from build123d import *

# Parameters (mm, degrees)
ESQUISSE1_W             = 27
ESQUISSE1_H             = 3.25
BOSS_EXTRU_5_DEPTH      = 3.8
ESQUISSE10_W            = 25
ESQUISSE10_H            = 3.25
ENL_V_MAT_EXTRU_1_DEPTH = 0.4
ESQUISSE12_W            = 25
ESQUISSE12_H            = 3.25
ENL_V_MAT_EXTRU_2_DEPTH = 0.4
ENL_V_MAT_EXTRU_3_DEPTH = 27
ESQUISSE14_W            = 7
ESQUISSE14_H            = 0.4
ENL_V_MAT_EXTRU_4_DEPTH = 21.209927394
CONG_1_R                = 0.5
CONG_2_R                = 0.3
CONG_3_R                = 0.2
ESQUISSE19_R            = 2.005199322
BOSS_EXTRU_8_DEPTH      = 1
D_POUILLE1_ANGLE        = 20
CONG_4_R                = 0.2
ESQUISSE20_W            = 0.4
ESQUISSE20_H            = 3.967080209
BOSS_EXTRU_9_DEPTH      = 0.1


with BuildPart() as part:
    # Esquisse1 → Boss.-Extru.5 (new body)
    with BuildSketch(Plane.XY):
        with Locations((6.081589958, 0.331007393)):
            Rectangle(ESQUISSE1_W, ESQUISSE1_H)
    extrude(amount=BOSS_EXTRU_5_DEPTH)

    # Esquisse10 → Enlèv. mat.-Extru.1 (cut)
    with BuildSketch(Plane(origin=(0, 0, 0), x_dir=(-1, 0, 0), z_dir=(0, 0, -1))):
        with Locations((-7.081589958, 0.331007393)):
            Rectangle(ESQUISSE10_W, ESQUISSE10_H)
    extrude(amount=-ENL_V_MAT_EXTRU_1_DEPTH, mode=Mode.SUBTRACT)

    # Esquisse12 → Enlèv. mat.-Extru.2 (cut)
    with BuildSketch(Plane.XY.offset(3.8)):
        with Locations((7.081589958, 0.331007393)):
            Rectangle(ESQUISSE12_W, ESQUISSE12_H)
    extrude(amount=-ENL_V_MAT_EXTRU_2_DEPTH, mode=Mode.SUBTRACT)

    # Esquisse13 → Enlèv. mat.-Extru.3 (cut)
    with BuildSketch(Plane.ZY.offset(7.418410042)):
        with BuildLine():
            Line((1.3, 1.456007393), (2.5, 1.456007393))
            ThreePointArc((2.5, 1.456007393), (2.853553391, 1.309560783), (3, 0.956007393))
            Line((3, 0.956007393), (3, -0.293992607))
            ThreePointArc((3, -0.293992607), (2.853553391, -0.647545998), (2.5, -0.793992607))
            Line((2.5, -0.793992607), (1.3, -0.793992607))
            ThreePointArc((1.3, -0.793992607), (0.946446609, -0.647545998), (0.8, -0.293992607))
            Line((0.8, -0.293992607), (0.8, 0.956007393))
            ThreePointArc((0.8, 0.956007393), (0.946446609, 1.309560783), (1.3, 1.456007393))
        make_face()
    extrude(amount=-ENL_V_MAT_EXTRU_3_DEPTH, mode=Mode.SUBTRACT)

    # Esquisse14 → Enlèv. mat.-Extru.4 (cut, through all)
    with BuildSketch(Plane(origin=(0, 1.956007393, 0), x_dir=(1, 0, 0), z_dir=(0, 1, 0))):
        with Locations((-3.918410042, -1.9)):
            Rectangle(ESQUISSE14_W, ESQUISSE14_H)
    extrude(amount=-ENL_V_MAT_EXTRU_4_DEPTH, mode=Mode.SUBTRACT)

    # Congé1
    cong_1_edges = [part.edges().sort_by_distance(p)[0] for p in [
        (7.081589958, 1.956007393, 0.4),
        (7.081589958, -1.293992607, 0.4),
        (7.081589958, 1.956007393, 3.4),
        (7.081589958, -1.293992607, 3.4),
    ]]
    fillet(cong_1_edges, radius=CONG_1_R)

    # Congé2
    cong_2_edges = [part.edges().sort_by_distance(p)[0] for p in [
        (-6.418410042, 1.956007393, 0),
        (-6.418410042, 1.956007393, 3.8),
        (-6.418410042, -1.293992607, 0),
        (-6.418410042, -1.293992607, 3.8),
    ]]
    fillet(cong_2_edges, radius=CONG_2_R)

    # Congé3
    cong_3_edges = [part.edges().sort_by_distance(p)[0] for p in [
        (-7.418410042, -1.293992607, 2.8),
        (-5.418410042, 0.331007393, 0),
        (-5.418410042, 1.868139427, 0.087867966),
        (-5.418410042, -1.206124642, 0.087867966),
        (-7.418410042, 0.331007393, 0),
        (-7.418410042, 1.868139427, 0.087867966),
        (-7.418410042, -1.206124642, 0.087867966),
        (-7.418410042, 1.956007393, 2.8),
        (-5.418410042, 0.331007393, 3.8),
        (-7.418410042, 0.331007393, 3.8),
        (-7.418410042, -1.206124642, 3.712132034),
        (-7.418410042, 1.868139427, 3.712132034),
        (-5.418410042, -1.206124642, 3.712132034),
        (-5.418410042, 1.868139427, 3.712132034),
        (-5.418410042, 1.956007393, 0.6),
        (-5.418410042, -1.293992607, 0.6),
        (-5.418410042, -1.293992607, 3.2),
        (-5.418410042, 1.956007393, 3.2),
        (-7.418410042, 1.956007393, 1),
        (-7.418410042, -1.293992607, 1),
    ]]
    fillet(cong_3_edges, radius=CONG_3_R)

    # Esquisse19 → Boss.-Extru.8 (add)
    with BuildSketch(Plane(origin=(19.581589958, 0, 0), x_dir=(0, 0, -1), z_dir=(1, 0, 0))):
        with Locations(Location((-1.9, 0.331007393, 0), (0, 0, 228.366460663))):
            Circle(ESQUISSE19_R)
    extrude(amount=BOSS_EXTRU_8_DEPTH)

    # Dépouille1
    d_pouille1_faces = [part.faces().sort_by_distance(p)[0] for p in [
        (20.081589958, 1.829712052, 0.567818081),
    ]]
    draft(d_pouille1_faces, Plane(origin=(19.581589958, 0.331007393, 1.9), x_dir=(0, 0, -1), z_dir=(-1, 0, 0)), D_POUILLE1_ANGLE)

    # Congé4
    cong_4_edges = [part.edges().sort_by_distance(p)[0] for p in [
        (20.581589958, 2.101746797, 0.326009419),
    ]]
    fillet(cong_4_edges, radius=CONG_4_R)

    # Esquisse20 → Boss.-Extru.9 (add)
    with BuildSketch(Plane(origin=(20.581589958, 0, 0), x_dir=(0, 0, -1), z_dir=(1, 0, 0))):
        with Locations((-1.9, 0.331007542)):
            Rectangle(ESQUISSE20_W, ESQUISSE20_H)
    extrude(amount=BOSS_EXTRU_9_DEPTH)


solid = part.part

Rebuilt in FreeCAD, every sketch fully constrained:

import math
import FreeCAD as App
import Part
import Sketcher


def edges_at(feature, points):
    """Names of the edges that pass closest to the given points."""
    edges = feature.Shape.Edges
    near = lambda p: min(range(len(edges)), key=lambda i: edges[i].distToShape(Part.Vertex(*p))[0])
    return sorted({f"Edge{near(p) + 1}" for p in points})


def faces_at(feature, points):
    """Names of the faces that lie closest to the given points."""
    faces = feature.Shape.Faces
    near = lambda p: min(range(len(faces)), key=lambda i: faces[i].distToShape(Part.Vertex(*p))[0])
    return sorted({f"Face{near(p) + 1}" for p in points})

doc = App.newDocument("Part")
body = doc.addObject("PartDesign::Body", "Body")

sketch1 = body.newObject("Sketcher::SketchObject", "Sketch")
sketch1.AttachmentSupport = (doc.getObject("XY_Plane"), [""])
sketch1.MapMode = "FlatFace"
sketch1.addGeometry(Part.LineSegment(App.Vector(-7.4, 2, 0), App.Vector(-7.4, -1.3, 0)), False)
sketch1.addGeometry(Part.LineSegment(App.Vector(-7.4, -1.3, 0), App.Vector(19.6, -1.3, 0)), False)
sketch1.addGeometry(Part.LineSegment(App.Vector(19.6, -1.3, 0), App.Vector(19.6, 2, 0)), False)
sketch1.addGeometry(Part.LineSegment(App.Vector(19.6, 2, 0), App.Vector(-7.4, 2, 0)), False)
sketch1.addConstraint(Sketcher.Constraint("Coincident", 0, 2, 1, 1))
sketch1.addConstraint(Sketcher.Constraint("Coincident", 1, 2, 2, 1))
sketch1.addConstraint(Sketcher.Constraint("Coincident", 2, 2, 3, 1))
sketch1.addConstraint(Sketcher.Constraint("Coincident", 3, 2, 0, 1))
sketch1.addConstraint(Sketcher.Constraint("Vertical", 0))
sketch1.addConstraint(Sketcher.Constraint("Horizontal", 1))
sketch1.addConstraint(Sketcher.Constraint("Vertical", 2))
sketch1.addConstraint(Sketcher.Constraint("Horizontal", 3))
sketch1.addConstraint(Sketcher.Constraint("DistanceX", 1, 1, 1, 2, 27.0))
sketch1.addConstraint(Sketcher.Constraint("DistanceY", 0, 2, 0, 1, 3.25))
sketch1.addConstraint(Sketcher.Constraint("DistanceX", 0, 2, -1, 1, 7.41841))
sketch1.addConstraint(Sketcher.Constraint("DistanceY", 0, 2, -1, 1, 1.293993))
pad1 = body.newObject("PartDesign::Pad", "Pad")
pad1.Profile = sketch1
pad1.Length = 3.8

sketch2 = body.newObject("Sketcher::SketchObject", "Sketch001")
sketch2.AttachmentSupport = (doc.getObject("XY_Plane"), [""])
sketch2.MapMode = "FlatFace"
sketch2.addGeometry(Part.LineSegment(App.Vector(19.6, 2, 0), App.Vector(19.6, -1.3, 0)), False)
sketch2.addGeometry(Part.LineSegment(App.Vector(19.6, -1.3, 0), App.Vector(-5.4, -1.3, 0)), False)
sketch2.addGeometry(Part.LineSegment(App.Vector(-5.4, -1.3, 0), App.Vector(-5.4, 2, 0)), False)
sketch2.addGeometry(Part.LineSegment(App.Vector(-5.4, 2, 0), App.Vector(19.6, 2, 0)), False)
sketch2.addConstraint(Sketcher.Constraint("Coincident", 0, 2, 1, 1))
sketch2.addConstraint(Sketcher.Constraint("Coincident", 1, 2, 2, 1))
sketch2.addConstraint(Sketcher.Constraint("Coincident", 2, 2, 3, 1))
sketch2.addConstraint(Sketcher.Constraint("Coincident", 3, 2, 0, 1))
sketch2.addConstraint(Sketcher.Constraint("Vertical", 0))
sketch2.addConstraint(Sketcher.Constraint("Horizontal", 1))
sketch2.addConstraint(Sketcher.Constraint("Vertical", 2))
sketch2.addConstraint(Sketcher.Constraint("Horizontal", 3))
sketch2.addConstraint(Sketcher.Constraint("DistanceX", 1, 2, 1, 1, 25.0))
sketch2.addConstraint(Sketcher.Constraint("DistanceY", 0, 2, 0, 1, 3.25))
sketch2.addConstraint(Sketcher.Constraint("DistanceX", -1, 1, 0, 2, 19.58159))
sketch2.addConstraint(Sketcher.Constraint("DistanceY", 0, 2, -1, 1, 1.293993))
pocket1 = body.newObject("PartDesign::Pocket", "Pocket")
pocket1.Profile = sketch2
pocket1.Length = 0.4
pocket1.Reversed = True

sketch3 = body.newObject("Sketcher::SketchObject", "Sketch002")
sketch3.AttachmentSupport = (doc.getObject("XY_Plane"), [""])
sketch3.MapMode = "FlatFace"
sketch3.AttachmentOffset = App.Placement(App.Vector(0, 0, 3.8), App.Rotation())
sketch3.addGeometry(Part.LineSegment(App.Vector(-5.4, 2, 0), App.Vector(-5.4, -1.3, 0)), False)
sketch3.addGeometry(Part.LineSegment(App.Vector(-5.4, -1.3, 0), App.Vector(19.6, -1.3, 0)), False)
sketch3.addGeometry(Part.LineSegment(App.Vector(19.6, -1.3, 0), App.Vector(19.6, 2, 0)), False)
sketch3.addGeometry(Part.LineSegment(App.Vector(19.6, 2, 0), App.Vector(-5.4, 2, 0)), False)
sketch3.addConstraint(Sketcher.Constraint("Coincident", 0, 2, 1, 1))
sketch3.addConstraint(Sketcher.Constraint("Coincident", 1, 2, 2, 1))
sketch3.addConstraint(Sketcher.Constraint("Coincident", 2, 2, 3, 1))
sketch3.addConstraint(Sketcher.Constraint("Coincident", 3, 2, 0, 1))
sketch3.addConstraint(Sketcher.Constraint("Vertical", 0))
sketch3.addConstraint(Sketcher.Constraint("Horizontal", 1))
sketch3.addConstraint(Sketcher.Constraint("Vertical", 2))
sketch3.addConstraint(Sketcher.Constraint("Horizontal", 3))
sketch3.addConstraint(Sketcher.Constraint("DistanceX", 1, 1, 1, 2, 25.0))
sketch3.addConstraint(Sketcher.Constraint("DistanceY", 0, 2, 0, 1, 3.25))
sketch3.addConstraint(Sketcher.Constraint("DistanceX", 0, 2, -1, 1, 5.41841))
sketch3.addConstraint(Sketcher.Constraint("DistanceY", 0, 2, -1, 1, 1.293993))
pocket2 = body.newObject("PartDesign::Pocket", "Pocket001")
pocket2.Profile = sketch3
pocket2.Length = 0.4

sketch4 = body.newObject("Sketcher::SketchObject", "Sketch003")
sketch4.AttachmentSupport = (doc.getObject("YZ_Plane"), [""])
sketch4.MapMode = "FlatFace"
sketch4.AttachmentOffset = App.Placement(App.Vector(0, 0, -7.41841), App.Rotation())
sketch4.addGeometry(Part.LineSegment(App.Vector(1.46, 2.5, 0), App.Vector(1.46, 1.3, 0)), False)
sketch4.addGeometry(Part.ArcOfCircle(Part.Circle(App.Vector(0.96, 1.3, 0), App.Vector(0, 0, 1), 0.5), math.radians(-90), math.radians(0)), False)
sketch4.addGeometry(Part.LineSegment(App.Vector(0.96, 0.8, 0), App.Vector(-0.29, 0.8, 0)), False)
sketch4.addGeometry(Part.ArcOfCircle(Part.Circle(App.Vector(-0.29, 1.3, 0), App.Vector(0, 0, 1), 0.5), math.radians(180), math.radians(270)), False)
sketch4.addGeometry(Part.LineSegment(App.Vector(-0.79, 1.3, 0), App.Vector(-0.79, 2.5, 0)), False)
sketch4.addGeometry(Part.ArcOfCircle(Part.Circle(App.Vector(-0.29, 2.5, 0), App.Vector(0, 0, 1), 0.5), math.radians(90), math.radians(180)), False)
sketch4.addGeometry(Part.LineSegment(App.Vector(-0.29, 3, 0), App.Vector(0.96, 3, 0)), False)
sketch4.addGeometry(Part.ArcOfCircle(Part.Circle(App.Vector(0.96, 2.5, 0), App.Vector(0, 0, 1), 0.5), math.radians(0), math.radians(90)), False)
sketch4.addConstraint(Sketcher.Constraint("Tangent", 0, 2, 1, 2))
sketch4.addConstraint(Sketcher.Constraint("Tangent", 1, 1, 2, 1))
sketch4.addConstraint(Sketcher.Constraint("Tangent", 2, 2, 3, 2))
sketch4.addConstraint(Sketcher.Constraint("Tangent", 3, 1, 4, 1))
sketch4.addConstraint(Sketcher.Constraint("Tangent", 4, 2, 5, 2))
sketch4.addConstraint(Sketcher.Constraint("Tangent", 5, 1, 6, 1))
sketch4.addConstraint(Sketcher.Constraint("Tangent", 6, 2, 7, 2))
sketch4.addConstraint(Sketcher.Constraint("Tangent", 7, 1, 0, 1))
sketch4.addConstraint(Sketcher.Constraint("Vertical", 0))
sketch4.addConstraint(Sketcher.Constraint("Horizontal", 2))
sketch4.addConstraint(Sketcher.Constraint("Vertical", 4))
sketch4.addConstraint(Sketcher.Constraint("Horizontal", 6))
sketch4.addConstraint(Sketcher.Constraint("Equal", 1, 3))
sketch4.addConstraint(Sketcher.Constraint("Equal", 3, 5))
sketch4.addConstraint(Sketcher.Constraint("Equal", 5, 7))
sketch4.addConstraint(Sketcher.Constraint("Radius", 1, 0.5))
sketch4.addConstraint(Sketcher.Constraint("DistanceY", 0, 2, 0, 1, 1.2))
sketch4.addConstraint(Sketcher.Constraint("DistanceY", -1, 1, 5, 1, 3.0))
sketch4.addConstraint(Sketcher.Constraint("DistanceX", 2, 2, 2, 1, 1.25))
sketch4.addConstraint(Sketcher.Constraint("DistanceX", -1, 1, 1, 3, 0.956007))
pocket3 = body.newObject("PartDesign::Pocket", "Pocket002")
pocket3.Profile = sketch4
pocket3.Length = 27
pocket3.Reversed = True

sketch5 = body.newObject("Sketcher::SketchObject", "Sketch004")
sketch5.AttachmentSupport = (doc.getObject("XZ_Plane"), [""])
sketch5.MapMode = "FlatFace"
sketch5.AttachmentOffset = App.Placement(App.Vector(0, 0, -1.956007), App.Rotation())
sketch5.addGeometry(Part.LineSegment(App.Vector(-7.42, 1.7, 0), App.Vector(-7.42, 2.1, 0)), False)
sketch5.addGeometry(Part.LineSegment(App.Vector(-7.42, 2.1, 0), App.Vector(-0.42, 2.1, 0)), False)
sketch5.addGeometry(Part.LineSegment(App.Vector(-0.42, 2.1, 0), App.Vector(-0.42, 1.7, 0)), False)
sketch5.addGeometry(Part.LineSegment(App.Vector(-0.42, 1.7, 0), App.Vector(-7.42, 1.7, 0)), False)
sketch5.addConstraint(Sketcher.Constraint("Coincident", 0, 2, 1, 1))
sketch5.addConstraint(Sketcher.Constraint("Coincident", 1, 2, 2, 1))
sketch5.addConstraint(Sketcher.Constraint("Coincident", 2, 2, 3, 1))
sketch5.addConstraint(Sketcher.Constraint("Coincident", 3, 2, 0, 1))
sketch5.addConstraint(Sketcher.Constraint("Vertical", 0))
sketch5.addConstraint(Sketcher.Constraint("Horizontal", 1))
sketch5.addConstraint(Sketcher.Constraint("Vertical", 2))
sketch5.addConstraint(Sketcher.Constraint("Horizontal", 3))
sketch5.addConstraint(Sketcher.Constraint("DistanceX", 1, 1, 1, 2, 7.0))
sketch5.addConstraint(Sketcher.Constraint("DistanceY", 0, 1, 0, 2, 0.4))
sketch5.addConstraint(Sketcher.Constraint("DistanceY", -1, 1, 0, 2, 2.1))
sketch5.addConstraint(Sketcher.Constraint("DistanceX", 0, 2, -1, 1, 7.41841))
pocket4 = body.newObject("PartDesign::Pocket", "Pocket003")
pocket4.Profile = sketch5
pocket4.Type = "ThroughAll"
pocket4.Reversed = True
doc.recompute()

fillet = body.newObject("PartDesign::Fillet", "Fillet")
fillet.Base = (pocket4, edges_at(pocket4, [
    (7.082, 1.956, 0.4),
    (7.082, -1.294, 0.4),
    (7.082, 1.956, 3.4),
    (7.082, -1.294, 3.4),
]))
fillet.Radius = 0.5
doc.recompute()

fillet2 = body.newObject("PartDesign::Fillet", "Fillet001")
fillet2.Base = (fillet, edges_at(fillet, [
    (-6.418, 1.956, 0),
    (-6.418, 1.956, 3.8),
    (-6.418, -1.294, 0),
    (-6.418, -1.294, 3.8),
]))
fillet2.Radius = 0.3
doc.recompute()

fillet3 = body.newObject("PartDesign::Fillet", "Fillet002")
fillet3.Base = (fillet2, edges_at(fillet2, [
    (-7.418, -1.294, 2.8),
    (-5.418, 0.331, 0),
    (-5.418, 1.868, 0.088),
    (-5.418, -1.206, 0.088),
    (-7.418, 0.331, 0),
    (-7.418, 1.868, 0.088),
    (-7.418, -1.206, 0.088),
    (-7.418, 1.956, 2.8),
    (-5.418, 0.331, 3.8),
    (-7.418, 0.331, 3.8),
    (-7.418, -1.206, 3.712),
    (-7.418, 1.868, 3.712),
    (-5.418, -1.206, 3.712),
    (-5.418, 1.868, 3.712),
    (-5.418, 1.956, 0.6),
    (-5.418, -1.294, 0.6),
    (-5.418, -1.294, 3.2),
    (-5.418, 1.956, 3.2),
    (-7.418, 1.956, 1),
    (-7.418, -1.294, 1),
]))
fillet3.Radius = 0.2

sketch6 = body.newObject("Sketcher::SketchObject", "Sketch005")
sketch6.AttachmentSupport = (doc.getObject("YZ_Plane"), [""])
sketch6.MapMode = "FlatFace"
sketch6.AttachmentOffset = App.Placement(App.Vector(0, 0, 19.58159), App.Rotation())
sketch6.addGeometry(Part.Circle(App.Vector(0.3, 1.9, 0), App.Vector(0, 0, 1), 2), False)
sketch6.addConstraint(Sketcher.Constraint("Diameter", 0, 4.010399))
sketch6.addConstraint(Sketcher.Constraint("DistanceY", -1, 1, 0, 3, 1.9))
sketch6.addConstraint(Sketcher.Constraint("DistanceX", -1, 1, 0, 3, 0.331007))
pad2 = body.newObject("PartDesign::Pad", "Pad001")
pad2.Profile = sketch6
pad2.Length = 1
doc.recompute()

datumplane = body.newObject("PartDesign::Plane", "DatumPlane")
datumplane.AttachmentSupport = (doc.getObject("YZ_Plane"), [""])
datumplane.MapMode = "FlatFace"
datumplane.AttachmentOffset = App.Placement(App.Vector(0, 0, 19.58159), App.Rotation())
draft = body.newObject("PartDesign::Draft", "Draft")
draft.Base = (pad2, faces_at(pad2, [(20.082, 1.83, 0.568)]))
draft.NeutralPlane = (datumplane, [""])
draft.Angle = 20
draft.Reversed = True
doc.recompute()

fillet4 = body.newObject("PartDesign::Fillet", "Fillet003")
fillet4.Base = (draft, edges_at(draft, [(20.582, 2.102, 0.326)]))
fillet4.Radius = 0.2

sketch7 = body.newObject("Sketcher::SketchObject", "Sketch006")
sketch7.AttachmentSupport = (doc.getObject("YZ_Plane"), [""])
sketch7.MapMode = "FlatFace"
sketch7.AttachmentOffset = App.Placement(App.Vector(0, 0, 20.58159), App.Rotation())
sketch7.addGeometry(Part.LineSegment(App.Vector(2.31, 2.1, 0), App.Vector(-1.65, 2.1, 0)), False)
sketch7.addGeometry(Part.LineSegment(App.Vector(-1.65, 2.1, 0), App.Vector(-1.65, 1.7, 0)), False)
sketch7.addGeometry(Part.LineSegment(App.Vector(-1.65, 1.7, 0), App.Vector(2.31, 1.7, 0)), False)
sketch7.addGeometry(Part.LineSegment(App.Vector(2.31, 1.7, 0), App.Vector(2.31, 2.1, 0)), False)
sketch7.addConstraint(Sketcher.Constraint("Coincident", 0, 2, 1, 1))
sketch7.addConstraint(Sketcher.Constraint("Coincident", 1, 2, 2, 1))
sketch7.addConstraint(Sketcher.Constraint("Coincident", 2, 2, 3, 1))
sketch7.addConstraint(Sketcher.Constraint("Coincident", 3, 2, 0, 1))
sketch7.addConstraint(Sketcher.Constraint("Horizontal", 0))
sketch7.addConstraint(Sketcher.Constraint("Vertical", 1))
sketch7.addConstraint(Sketcher.Constraint("Horizontal", 2))
sketch7.addConstraint(Sketcher.Constraint("Vertical", 3))
sketch7.addConstraint(Sketcher.Constraint("DistanceY", 1, 2, 1, 1, 0.4))
sketch7.addConstraint(Sketcher.Constraint("DistanceY", -1, 1, 0, 2, 2.1))
sketch7.addConstraint(Sketcher.Constraint("DistanceX", 0, 2, 0, 1, 3.96708))
sketch7.addConstraint(Sketcher.Constraint("DistanceX", 0, 2, -1, 1, 1.652533))
pad3 = body.newObject("PartDesign::Pad", "Pad002")
pad3.Profile = sketch7
pad3.Length = 0.1

doc.recompute()
